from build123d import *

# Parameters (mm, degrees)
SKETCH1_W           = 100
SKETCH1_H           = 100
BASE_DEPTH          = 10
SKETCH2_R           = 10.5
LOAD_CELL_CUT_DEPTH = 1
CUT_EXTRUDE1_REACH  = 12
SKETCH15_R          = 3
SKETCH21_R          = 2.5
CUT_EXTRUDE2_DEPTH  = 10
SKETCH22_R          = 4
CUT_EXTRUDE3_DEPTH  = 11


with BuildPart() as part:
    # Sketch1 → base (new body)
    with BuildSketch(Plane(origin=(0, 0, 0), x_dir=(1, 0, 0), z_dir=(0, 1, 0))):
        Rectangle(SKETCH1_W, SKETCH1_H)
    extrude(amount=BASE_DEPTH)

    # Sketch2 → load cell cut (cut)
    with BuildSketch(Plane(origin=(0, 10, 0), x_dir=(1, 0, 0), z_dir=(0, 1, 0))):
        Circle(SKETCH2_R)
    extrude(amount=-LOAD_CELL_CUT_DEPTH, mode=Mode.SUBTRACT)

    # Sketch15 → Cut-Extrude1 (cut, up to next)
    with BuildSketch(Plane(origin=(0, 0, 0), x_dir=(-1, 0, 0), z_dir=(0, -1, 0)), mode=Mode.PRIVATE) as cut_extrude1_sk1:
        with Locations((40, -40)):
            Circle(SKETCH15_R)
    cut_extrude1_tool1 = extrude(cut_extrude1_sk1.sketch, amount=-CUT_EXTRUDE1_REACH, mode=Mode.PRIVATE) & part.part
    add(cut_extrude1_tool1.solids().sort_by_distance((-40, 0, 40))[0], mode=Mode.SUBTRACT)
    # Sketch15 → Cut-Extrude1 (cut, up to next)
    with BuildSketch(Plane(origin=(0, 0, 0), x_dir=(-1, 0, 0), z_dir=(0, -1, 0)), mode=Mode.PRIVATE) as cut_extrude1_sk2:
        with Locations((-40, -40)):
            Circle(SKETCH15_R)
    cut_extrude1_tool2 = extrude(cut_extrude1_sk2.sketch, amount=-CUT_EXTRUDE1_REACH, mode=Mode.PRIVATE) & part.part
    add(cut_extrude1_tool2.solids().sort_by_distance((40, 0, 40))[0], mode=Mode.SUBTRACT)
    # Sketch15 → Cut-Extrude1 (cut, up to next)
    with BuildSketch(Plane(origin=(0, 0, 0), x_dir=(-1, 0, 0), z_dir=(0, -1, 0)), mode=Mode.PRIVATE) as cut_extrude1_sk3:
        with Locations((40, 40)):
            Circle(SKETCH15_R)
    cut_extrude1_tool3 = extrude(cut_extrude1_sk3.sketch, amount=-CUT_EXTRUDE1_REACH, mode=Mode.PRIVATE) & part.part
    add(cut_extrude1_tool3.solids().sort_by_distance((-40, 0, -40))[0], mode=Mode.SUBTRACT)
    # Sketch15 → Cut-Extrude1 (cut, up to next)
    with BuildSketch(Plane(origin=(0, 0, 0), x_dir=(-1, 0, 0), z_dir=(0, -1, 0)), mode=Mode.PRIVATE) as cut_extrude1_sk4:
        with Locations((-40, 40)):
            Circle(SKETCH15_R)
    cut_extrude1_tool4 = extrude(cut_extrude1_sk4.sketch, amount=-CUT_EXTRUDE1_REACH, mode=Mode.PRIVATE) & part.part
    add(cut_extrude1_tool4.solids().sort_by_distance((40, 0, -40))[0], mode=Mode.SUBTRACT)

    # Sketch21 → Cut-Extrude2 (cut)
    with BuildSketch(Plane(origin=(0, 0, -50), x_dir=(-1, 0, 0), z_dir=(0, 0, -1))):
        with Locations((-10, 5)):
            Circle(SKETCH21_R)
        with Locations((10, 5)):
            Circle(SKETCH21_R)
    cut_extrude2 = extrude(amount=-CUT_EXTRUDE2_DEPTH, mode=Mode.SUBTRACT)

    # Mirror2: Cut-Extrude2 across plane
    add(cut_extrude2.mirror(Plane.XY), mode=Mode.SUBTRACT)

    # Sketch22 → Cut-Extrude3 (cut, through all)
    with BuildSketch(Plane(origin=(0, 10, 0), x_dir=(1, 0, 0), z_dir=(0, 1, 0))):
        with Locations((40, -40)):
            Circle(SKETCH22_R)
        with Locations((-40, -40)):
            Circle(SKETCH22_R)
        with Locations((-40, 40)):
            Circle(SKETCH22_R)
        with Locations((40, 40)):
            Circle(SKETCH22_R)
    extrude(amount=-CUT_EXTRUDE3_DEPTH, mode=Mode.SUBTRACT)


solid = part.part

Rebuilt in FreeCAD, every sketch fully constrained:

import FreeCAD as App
import Part
import Sketcher
Q = App.Units.Quantity


def add_polygon(sketch, points):
    """Adds a closed chain of lines whose ends are joined by coincident constraints."""
    first, n = sketch.GeometryCount, len(points)
    for a, b in zip(points, points[1:] + points[:1]):
        sketch.addGeometry(Part.LineSegment(App.Vector(*a, 0), App.Vector(*b, 0)), False)
    for i in range(n):
        sketch.addConstraint(Sketcher.Constraint("Coincident", first + i, 2, first + (i + 1) % n, 1))

doc = App.newDocument("Part")
body = doc.addObject("PartDesign::Body", "Body")

# Sketch on XZ plane
sketch1 = body.newObject("Sketcher::SketchObject", "Sketch")
sketch1.AttachmentSupport = (doc.getObject("XZ_Plane"), [""])
sketch1.MapMode = "FlatFace"
add_polygon(sketch1, [(-50, -50), (-50, 50), (50, 50), (50, -50)])  # lines 0-3
sketch1.addConstraint([
    Sketcher.Constraint("Vertical", 0),
    Sketcher.Constraint("Horizontal", 1),
    Sketcher.Constraint("Vertical", 2),
    Sketcher.Constraint("Horizontal", 3),
    Sketcher.Constraint("Symmetric", 0, 2, 2, 2, -1, 1),
    Sketcher.Constraint("Equal", 3, 0),
    Sketcher.Constraint("DistanceX", 1, 1, 1, 2, Q("100 mm")),
])
pad1 = body.newObject("PartDesign::Pad", "Pad")
pad1.Profile = sketch1
pad1.Length = 10
pad1.Reversed = True

# Sketch on XZ plane
sketch2 = body.newObject("Sketcher::SketchObject", "Sketch001")
sketch2.AttachmentSupport = (doc.getObject("XZ_Plane"), [""])
sketch2.MapMode = "FlatFace"
sketch2.AttachmentOffset = App.Placement(App.Vector(0, 0, -10), App.Rotation())
sketch2.addGeometry(Part.Circle(App.Vector(0, 0, 0), App.Vector(0, 0, 1), 10), False)
sketch2.addConstraint([
    Sketcher.Constraint("Coincident", 0, 3, -1, 1),
    Sketcher.Constraint("Diameter", 0, Q("21 mm")),
])
pocket1 = body.newObject("PartDesign::Pocket", "Pocket")
pocket1.Profile = sketch2
pocket1.Length = 1
pocket1.Reversed = True

# Sketch on XZ plane
sketch3 = body.newObject("Sketcher::SketchObject", "Sketch002")
sketch3.AttachmentSupport = (doc.getObject("XZ_Plane"), [""])
sketch3.MapMode = "FlatFace"
sketch3.addGeometry(Part.Circle(App.Vector(-40, 40, 0), App.Vector(0, 0, 1), 3), False)
sketch3.addConstraint([
    Sketcher.Constraint("Diameter", 0, Q("6 mm")),
    Sketcher.Constraint("DistanceX", 0, 3, -1, 1, Q("40 mm")),
    Sketcher.Constraint("DistanceY", -1, 1, 0, 3, Q("40 mm")),
])
pocket2 = body.newObject("PartDesign::Pocket", "Pocket001")
pocket2.Profile = sketch3
pocket2.Type = "UpToFirst"

# Sketch on XZ plane
sketch4 = body.newObject("Sketcher::SketchObject", "Sketch003")
sketch4.AttachmentSupport = (doc.getObject("XZ_Plane"), [""])
sketch4.MapMode = "FlatFace"
sketch4.addGeometry(Part.Circle(App.Vector(40, 40, 0), App.Vector(0, 0, 1), 3), False)
sketch4.addConstraint([
    Sketcher.Constraint("Diameter", 0, Q("6 mm")),
    Sketcher.Constraint("DistanceX", -1, 1, 0, 3, Q("40 mm")),
    Sketcher.Constraint("DistanceY", -1, 1, 0, 3, Q("40 mm")),
])
pocket3 = body.newObject("PartDesign::Pocket", "Pocket002")
pocket3.Profile = sketch4
pocket3.Type = "UpToFirst"

# Sketch on XZ plane
sketch5 = body.newObject("Sketcher::SketchObject", "Sketch004")
sketch5.AttachmentSupport = (doc.getObject("XZ_Plane"), [""])
sketch5.MapMode = "FlatFace"
sketch5.addGeometry(Part.Circle(App.Vector(-40, -40, 0), App.Vector(0, 0, 1), 3), False)
sketch5.addConstraint([
    Sketcher.Constraint("Diameter", 0, Q("6 mm")),
    Sketcher.Constraint("DistanceX", 0, 3, -1, 1, Q("40 mm")),
    Sketcher.Constraint("DistanceY", 0, 3, -1, 1, Q("40 mm")),
])
pocket4 = body.newObject("PartDesign::Pocket", "Pocket003")
pocket4.Profile = sketch5
pocket4.Type = "UpToFirst"

# Sketch on XZ plane
sketch6 = body.newObject("Sketcher::SketchObject", "Sketch005")
sketch6.AttachmentSupport = (doc.getObject("XZ_Plane"), [""])
sketch6.MapMode = "FlatFace"
sketch6.addGeometry(Part.Circle(App.Vector(40, -40, 0), App.Vector(0, 0, 1), 3), False)
sketch6.addConstraint([
    Sketcher.Constraint("Diameter", 0, Q("6 mm")),
    Sketcher.Constraint("DistanceX", -1, 1, 0, 3, Q("40 mm")),
    Sketcher.Constraint("DistanceY", 0, 3, -1, 1, Q("40 mm")),
])
pocket5 = body.newObject("PartDesign::Pocket", "Pocket004")
pocket5.Profile = sketch6
pocket5.Type = "UpToFirst"

# Sketch on XY plane
sketch7 = body.newObject("Sketcher::SketchObject", "Sketch006")
sketch7.AttachmentSupport = (doc.getObject("XY_Plane"), [""])
sketch7.MapMode = "FlatFace"
sketch7.AttachmentOffset = App.Placement(App.Vector(0, 0, -50), App.Rotation())
sketch7.addGeometry([
    Part.Circle(App.Vector(10, 5, 0), App.Vector(0, 0, 1), 2.5),
    Part.Circle(App.Vector(-10, 5, 0), App.Vector(0, 0, 1), 2.5),
], False)
sketch7.addConstraint([
    Sketcher.Constraint("Equal", 0, 1),
    Sketcher.Constraint("Symmetric", 0, 3, 1, 3, -2),
    Sketcher.Constraint("Diameter", 0, Q("5 mm")),
    Sketcher.Constraint("DistanceX", -1, 1, 0, 3, Q("10 mm")),
    Sketcher.Constraint("DistanceY", -1, 1, 0, 3, Q("5 mm")),
])
pocket6 = body.newObject("PartDesign::Pocket", "Pocket005")
pocket6.Profile = sketch7
pocket6.Length = 10
pocket6.Reversed = True
doc.recompute()

mirrored = body.newObject("PartDesign::Mirrored", "Mirrored")
mirrored.Originals = [pocket6]
mirrored.MirrorPlane = (doc.getObject("XY_Plane"), [""])
body.Tip = mirrored

# Sketch on XZ plane
sketch8 = body.newObject("Sketcher::SketchObject", "Sketch007")
sketch8.AttachmentSupport = (doc.getObject("XZ_Plane"), [""])
sketch8.MapMode = "FlatFace"
sketch8.AttachmentOffset = App.Placement(App.Vector(0, 0, -10), App.Rotation())
sketch8.addGeometry([
    Part.Circle(App.Vector(40, 40, 0), App.Vector(0, 0, 1), 4),
    Part.Circle(App.Vector(-40, 40, 0), App.Vector(0, 0, 1), 4),
    Part.Circle(App.Vector(-40, -40, 0), App.Vector(0, 0, 1), 4),
    Part.Circle(App.Vector(40, -40, 0), App.Vector(0, 0, 1), 4),
], False)
sketch8.addConstraint([
    Sketcher.Constraint("Equal", 0, 1),
    Sketcher.Constraint("Equal", 1, 2),
    Sketcher.Constraint("Equal", 2, 3),
    Sketcher.Constraint("Symmetric", 0, 3, 2, 3, -1, 1),
    Sketcher.Constraint("Symmetric", 1, 3, 3, 3, -1, 1),
    Sketcher.Constraint("Symmetric", 0, 3, 1, 3, -2),
    Sketcher.Constraint("Diameter", 0, Q("8 mm")),
    Sketcher.Constraint("DistanceX", -1, 1, 0, 3, Q("40 mm")),
    Sketcher.Constraint("DistanceY", -1, 1, 0, 3, Q("40 mm")),
])
pocket7 = body.newObject("PartDesign::Pocket", "Pocket006")
pocket7.Profile = sketch8
pocket7.Type = "ThroughAll"
pocket7.Reversed = True

doc.recompute()
